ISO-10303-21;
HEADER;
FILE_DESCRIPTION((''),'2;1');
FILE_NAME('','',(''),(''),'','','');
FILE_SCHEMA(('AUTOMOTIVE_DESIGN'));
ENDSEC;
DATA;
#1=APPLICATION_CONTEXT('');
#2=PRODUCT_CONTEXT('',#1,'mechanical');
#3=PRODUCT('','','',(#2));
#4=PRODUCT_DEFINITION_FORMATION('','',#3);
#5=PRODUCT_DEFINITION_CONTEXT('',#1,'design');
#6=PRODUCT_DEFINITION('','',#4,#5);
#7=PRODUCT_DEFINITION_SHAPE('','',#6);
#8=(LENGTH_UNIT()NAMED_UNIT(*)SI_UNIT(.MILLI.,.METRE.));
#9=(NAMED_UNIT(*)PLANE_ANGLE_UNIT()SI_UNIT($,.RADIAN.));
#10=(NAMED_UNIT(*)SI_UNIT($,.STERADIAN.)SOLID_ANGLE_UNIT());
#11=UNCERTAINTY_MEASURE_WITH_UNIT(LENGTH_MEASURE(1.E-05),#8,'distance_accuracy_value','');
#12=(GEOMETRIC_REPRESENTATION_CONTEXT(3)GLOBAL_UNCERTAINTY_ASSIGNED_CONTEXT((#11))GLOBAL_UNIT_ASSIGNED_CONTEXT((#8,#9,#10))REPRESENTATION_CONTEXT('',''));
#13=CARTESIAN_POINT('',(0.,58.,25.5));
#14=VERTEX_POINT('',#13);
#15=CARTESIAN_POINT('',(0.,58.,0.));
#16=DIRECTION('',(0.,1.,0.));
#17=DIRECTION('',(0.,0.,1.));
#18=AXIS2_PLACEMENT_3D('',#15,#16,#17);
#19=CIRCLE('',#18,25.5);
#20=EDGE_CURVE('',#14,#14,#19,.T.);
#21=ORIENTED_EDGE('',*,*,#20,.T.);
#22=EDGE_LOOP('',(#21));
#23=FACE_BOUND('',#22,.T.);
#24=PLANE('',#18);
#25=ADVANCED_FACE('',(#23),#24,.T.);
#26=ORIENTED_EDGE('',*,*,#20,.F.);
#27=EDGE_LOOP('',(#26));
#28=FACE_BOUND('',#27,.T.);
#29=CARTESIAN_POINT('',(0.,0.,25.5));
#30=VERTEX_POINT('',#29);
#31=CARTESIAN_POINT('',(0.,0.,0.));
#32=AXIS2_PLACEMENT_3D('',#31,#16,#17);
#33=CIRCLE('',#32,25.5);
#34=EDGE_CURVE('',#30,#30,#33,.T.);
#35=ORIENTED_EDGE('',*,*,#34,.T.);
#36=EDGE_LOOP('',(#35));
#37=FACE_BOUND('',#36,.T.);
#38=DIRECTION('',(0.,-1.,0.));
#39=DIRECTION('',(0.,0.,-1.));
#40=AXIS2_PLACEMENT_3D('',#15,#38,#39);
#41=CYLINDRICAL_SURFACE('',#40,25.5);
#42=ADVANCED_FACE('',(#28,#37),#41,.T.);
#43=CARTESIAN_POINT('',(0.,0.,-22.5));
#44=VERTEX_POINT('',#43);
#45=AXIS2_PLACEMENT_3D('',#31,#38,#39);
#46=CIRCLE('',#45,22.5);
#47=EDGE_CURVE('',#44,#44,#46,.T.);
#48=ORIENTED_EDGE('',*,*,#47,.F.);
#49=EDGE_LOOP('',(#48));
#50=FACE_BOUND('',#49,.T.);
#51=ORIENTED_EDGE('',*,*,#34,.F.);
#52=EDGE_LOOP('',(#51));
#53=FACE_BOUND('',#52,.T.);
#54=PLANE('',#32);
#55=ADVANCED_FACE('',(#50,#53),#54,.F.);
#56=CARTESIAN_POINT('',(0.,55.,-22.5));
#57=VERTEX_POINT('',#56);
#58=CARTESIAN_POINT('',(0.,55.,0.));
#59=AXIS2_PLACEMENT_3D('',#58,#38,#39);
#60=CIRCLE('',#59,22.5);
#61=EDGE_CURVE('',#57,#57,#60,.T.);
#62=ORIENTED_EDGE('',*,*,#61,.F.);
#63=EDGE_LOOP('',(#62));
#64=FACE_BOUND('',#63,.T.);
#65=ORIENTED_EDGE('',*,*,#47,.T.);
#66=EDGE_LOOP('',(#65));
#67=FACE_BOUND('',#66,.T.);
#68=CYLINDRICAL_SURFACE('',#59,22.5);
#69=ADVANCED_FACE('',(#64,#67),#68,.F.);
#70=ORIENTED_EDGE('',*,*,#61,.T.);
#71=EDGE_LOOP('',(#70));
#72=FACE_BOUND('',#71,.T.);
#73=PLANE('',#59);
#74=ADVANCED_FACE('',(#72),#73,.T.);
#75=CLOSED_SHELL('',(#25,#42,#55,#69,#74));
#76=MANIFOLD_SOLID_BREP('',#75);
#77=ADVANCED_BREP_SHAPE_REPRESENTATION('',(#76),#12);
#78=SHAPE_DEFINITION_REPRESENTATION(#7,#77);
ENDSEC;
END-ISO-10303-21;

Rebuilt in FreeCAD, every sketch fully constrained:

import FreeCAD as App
import Part
import Sketcher
from FreeCAD import Vector

doc = App.newDocument("Part")
params = doc.addObject("Spreadsheet::Sheet", "Params")
for row, (alias, value) in enumerate([
    ("sketch1_diameter", "51 mm"),
    ("pad1_length", "58 mm"),
    ("sketch2_diameter", "45 mm"),
    ("pocket1_length", "55 mm"),
], start=1):
    params.set(f"A{row}", alias)
    params.set(f"B{row}", "=" + value)
    params.setAlias(f"B{row}", alias)

body = doc.addObject("PartDesign::Body", "Body")

# Sketch on XZ plane
sketch1 = body.newObject("Sketcher::SketchObject", "Sketch")
sketch1.AttachmentSupport = (doc.getObject("XZ_Plane"), [""])
sketch1.MapMode = "FlatFace"
sketch1.addGeometry(Part.Circle(Vector(0, 0, 0), Vector(0, 0, 1), 26), False)
sketch1.addConstraint(Sketcher.Constraint("Coincident", 0, 3, -1, 1))
sketch1.addConstraint(Sketcher.Constraint("Diameter", 0, 51.0))
sketch1.setExpression("Constraints[1]", "Params.sketch1_diameter")
pad1 = body.newObject("PartDesign::Pad", "Pad")
pad1.Profile = sketch1
pad1.setExpression("Length", "Params.pad1_length")
pad1.Reversed = True

# Sketch on XZ plane
sketch2 = body.newObject("Sketcher::SketchObject", "Sketch001")
sketch2.AttachmentSupport = (doc.getObject("XZ_Plane"), [""])
sketch2.MapMode = "FlatFace"
sketch2.addGeometry(Part.Circle(Vector(0, 0, 0), Vector(0, 0, 1), 22), False)
sketch2.addConstraint(Sketcher.Constraint("Coincident", 0, 3, -1, 1))
sketch2.addConstraint(Sketcher.Constraint("Diameter", 0, 45.0))
sketch2.setExpression("Constraints[1]", "Params.sketch2_diameter")
pocket1 = body.newObject("PartDesign::Pocket", "Pocket")
pocket1.Profile = sketch2
pocket1.setExpression("Length", "Params.pocket1_length")

doc.recompute()
